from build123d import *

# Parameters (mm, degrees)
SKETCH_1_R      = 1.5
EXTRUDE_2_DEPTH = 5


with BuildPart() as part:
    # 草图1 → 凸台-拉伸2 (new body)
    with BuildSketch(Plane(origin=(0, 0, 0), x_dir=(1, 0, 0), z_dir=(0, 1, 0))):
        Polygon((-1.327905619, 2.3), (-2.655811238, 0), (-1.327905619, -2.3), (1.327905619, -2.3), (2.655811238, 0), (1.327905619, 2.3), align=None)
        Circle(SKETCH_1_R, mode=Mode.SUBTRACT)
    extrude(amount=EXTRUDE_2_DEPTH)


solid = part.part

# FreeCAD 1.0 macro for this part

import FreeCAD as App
import Part
import Sketcher
Q = App.Units.Quantity


def add_polygon(sketch, points):
    """Adds a closed chain of lines whose ends are joined by coincident constraints."""
    first, n = sketch.GeometryCount, len(points)
    for a, b in zip(points, points[1:] + points[:1]):
        sketch.addGeometry(Part.LineSegment(App.Vector(*a, 0), App.Vector(*b, 0)), False)
    for i in range(n):
        sketch.addConstraint(Sketcher.Constraint("Coincident", first + i, 2, first + (i + 1) % n, 1))

doc = App.newDocument("Part")
body = doc.addObject("PartDesign::Body", "Body")

sketch1 = body.newObject("Sketcher::SketchObject", "Sketch")
sketch1.AttachmentSupport = (doc.getObject("XZ_Plane"), [""])
sketch1.MapMode = "FlatFace"
add_polygon(sketch1, [(-1.3, -2.3), (-2.7, 0), (-1.3, 2.3), (1.3, 2.3), (2.7, 0), (1.3, -2.3)])
sketch1.addGeometry(Part.Circle(App.Vector(0, 0, 0), App.Vector(0, 0, 1), 1.5), False)
sketch1.addConstraint(Sketcher.Constraint("Horizontal", 2))
sketch1.addConstraint(Sketcher.Constraint("Horizontal", 5))
sketch1.addConstraint(Sketcher.Constraint("Coincident", 6, 3, -1, 1))
sketch1.addConstraint(Sketcher.Constraint("Symmetric", 0, 2, 3, 2, -1, 1))
sketch1.addConstraint(Sketcher.Constraint("Symmetric", 1, 2, 4, 2, -1, 1))
sketch1.addConstraint(Sketcher.Constraint("PointOnObject", 0, 2, -1))
sketch1.addConstraint(Sketcher.Constraint("Parallel", 0, 3))
sketch1.addConstraint(Sketcher.Constraint("Vertical", 2, 2, 4, 2))
sketch1.addConstraint(Sketcher.Constraint("Diameter", 6, 3.0))
sketch1.addConstraint(Sketcher.Constraint("Angle", 0, Q("120 deg")))
sketch1.addConstraint(Sketcher.Constraint("DistanceY", -1, 1, 1, 2, 2.3))
sketch1.addConstraint(Sketcher.Constraint("DistanceX", 2, 1, 2, 2, 2.655811))
pad1 = body.newObject("PartDesign::Pad", "Pad")
pad1.Profile = sketch1
pad1.Length = 5
pad1.Reversed = True

doc.recompute()
